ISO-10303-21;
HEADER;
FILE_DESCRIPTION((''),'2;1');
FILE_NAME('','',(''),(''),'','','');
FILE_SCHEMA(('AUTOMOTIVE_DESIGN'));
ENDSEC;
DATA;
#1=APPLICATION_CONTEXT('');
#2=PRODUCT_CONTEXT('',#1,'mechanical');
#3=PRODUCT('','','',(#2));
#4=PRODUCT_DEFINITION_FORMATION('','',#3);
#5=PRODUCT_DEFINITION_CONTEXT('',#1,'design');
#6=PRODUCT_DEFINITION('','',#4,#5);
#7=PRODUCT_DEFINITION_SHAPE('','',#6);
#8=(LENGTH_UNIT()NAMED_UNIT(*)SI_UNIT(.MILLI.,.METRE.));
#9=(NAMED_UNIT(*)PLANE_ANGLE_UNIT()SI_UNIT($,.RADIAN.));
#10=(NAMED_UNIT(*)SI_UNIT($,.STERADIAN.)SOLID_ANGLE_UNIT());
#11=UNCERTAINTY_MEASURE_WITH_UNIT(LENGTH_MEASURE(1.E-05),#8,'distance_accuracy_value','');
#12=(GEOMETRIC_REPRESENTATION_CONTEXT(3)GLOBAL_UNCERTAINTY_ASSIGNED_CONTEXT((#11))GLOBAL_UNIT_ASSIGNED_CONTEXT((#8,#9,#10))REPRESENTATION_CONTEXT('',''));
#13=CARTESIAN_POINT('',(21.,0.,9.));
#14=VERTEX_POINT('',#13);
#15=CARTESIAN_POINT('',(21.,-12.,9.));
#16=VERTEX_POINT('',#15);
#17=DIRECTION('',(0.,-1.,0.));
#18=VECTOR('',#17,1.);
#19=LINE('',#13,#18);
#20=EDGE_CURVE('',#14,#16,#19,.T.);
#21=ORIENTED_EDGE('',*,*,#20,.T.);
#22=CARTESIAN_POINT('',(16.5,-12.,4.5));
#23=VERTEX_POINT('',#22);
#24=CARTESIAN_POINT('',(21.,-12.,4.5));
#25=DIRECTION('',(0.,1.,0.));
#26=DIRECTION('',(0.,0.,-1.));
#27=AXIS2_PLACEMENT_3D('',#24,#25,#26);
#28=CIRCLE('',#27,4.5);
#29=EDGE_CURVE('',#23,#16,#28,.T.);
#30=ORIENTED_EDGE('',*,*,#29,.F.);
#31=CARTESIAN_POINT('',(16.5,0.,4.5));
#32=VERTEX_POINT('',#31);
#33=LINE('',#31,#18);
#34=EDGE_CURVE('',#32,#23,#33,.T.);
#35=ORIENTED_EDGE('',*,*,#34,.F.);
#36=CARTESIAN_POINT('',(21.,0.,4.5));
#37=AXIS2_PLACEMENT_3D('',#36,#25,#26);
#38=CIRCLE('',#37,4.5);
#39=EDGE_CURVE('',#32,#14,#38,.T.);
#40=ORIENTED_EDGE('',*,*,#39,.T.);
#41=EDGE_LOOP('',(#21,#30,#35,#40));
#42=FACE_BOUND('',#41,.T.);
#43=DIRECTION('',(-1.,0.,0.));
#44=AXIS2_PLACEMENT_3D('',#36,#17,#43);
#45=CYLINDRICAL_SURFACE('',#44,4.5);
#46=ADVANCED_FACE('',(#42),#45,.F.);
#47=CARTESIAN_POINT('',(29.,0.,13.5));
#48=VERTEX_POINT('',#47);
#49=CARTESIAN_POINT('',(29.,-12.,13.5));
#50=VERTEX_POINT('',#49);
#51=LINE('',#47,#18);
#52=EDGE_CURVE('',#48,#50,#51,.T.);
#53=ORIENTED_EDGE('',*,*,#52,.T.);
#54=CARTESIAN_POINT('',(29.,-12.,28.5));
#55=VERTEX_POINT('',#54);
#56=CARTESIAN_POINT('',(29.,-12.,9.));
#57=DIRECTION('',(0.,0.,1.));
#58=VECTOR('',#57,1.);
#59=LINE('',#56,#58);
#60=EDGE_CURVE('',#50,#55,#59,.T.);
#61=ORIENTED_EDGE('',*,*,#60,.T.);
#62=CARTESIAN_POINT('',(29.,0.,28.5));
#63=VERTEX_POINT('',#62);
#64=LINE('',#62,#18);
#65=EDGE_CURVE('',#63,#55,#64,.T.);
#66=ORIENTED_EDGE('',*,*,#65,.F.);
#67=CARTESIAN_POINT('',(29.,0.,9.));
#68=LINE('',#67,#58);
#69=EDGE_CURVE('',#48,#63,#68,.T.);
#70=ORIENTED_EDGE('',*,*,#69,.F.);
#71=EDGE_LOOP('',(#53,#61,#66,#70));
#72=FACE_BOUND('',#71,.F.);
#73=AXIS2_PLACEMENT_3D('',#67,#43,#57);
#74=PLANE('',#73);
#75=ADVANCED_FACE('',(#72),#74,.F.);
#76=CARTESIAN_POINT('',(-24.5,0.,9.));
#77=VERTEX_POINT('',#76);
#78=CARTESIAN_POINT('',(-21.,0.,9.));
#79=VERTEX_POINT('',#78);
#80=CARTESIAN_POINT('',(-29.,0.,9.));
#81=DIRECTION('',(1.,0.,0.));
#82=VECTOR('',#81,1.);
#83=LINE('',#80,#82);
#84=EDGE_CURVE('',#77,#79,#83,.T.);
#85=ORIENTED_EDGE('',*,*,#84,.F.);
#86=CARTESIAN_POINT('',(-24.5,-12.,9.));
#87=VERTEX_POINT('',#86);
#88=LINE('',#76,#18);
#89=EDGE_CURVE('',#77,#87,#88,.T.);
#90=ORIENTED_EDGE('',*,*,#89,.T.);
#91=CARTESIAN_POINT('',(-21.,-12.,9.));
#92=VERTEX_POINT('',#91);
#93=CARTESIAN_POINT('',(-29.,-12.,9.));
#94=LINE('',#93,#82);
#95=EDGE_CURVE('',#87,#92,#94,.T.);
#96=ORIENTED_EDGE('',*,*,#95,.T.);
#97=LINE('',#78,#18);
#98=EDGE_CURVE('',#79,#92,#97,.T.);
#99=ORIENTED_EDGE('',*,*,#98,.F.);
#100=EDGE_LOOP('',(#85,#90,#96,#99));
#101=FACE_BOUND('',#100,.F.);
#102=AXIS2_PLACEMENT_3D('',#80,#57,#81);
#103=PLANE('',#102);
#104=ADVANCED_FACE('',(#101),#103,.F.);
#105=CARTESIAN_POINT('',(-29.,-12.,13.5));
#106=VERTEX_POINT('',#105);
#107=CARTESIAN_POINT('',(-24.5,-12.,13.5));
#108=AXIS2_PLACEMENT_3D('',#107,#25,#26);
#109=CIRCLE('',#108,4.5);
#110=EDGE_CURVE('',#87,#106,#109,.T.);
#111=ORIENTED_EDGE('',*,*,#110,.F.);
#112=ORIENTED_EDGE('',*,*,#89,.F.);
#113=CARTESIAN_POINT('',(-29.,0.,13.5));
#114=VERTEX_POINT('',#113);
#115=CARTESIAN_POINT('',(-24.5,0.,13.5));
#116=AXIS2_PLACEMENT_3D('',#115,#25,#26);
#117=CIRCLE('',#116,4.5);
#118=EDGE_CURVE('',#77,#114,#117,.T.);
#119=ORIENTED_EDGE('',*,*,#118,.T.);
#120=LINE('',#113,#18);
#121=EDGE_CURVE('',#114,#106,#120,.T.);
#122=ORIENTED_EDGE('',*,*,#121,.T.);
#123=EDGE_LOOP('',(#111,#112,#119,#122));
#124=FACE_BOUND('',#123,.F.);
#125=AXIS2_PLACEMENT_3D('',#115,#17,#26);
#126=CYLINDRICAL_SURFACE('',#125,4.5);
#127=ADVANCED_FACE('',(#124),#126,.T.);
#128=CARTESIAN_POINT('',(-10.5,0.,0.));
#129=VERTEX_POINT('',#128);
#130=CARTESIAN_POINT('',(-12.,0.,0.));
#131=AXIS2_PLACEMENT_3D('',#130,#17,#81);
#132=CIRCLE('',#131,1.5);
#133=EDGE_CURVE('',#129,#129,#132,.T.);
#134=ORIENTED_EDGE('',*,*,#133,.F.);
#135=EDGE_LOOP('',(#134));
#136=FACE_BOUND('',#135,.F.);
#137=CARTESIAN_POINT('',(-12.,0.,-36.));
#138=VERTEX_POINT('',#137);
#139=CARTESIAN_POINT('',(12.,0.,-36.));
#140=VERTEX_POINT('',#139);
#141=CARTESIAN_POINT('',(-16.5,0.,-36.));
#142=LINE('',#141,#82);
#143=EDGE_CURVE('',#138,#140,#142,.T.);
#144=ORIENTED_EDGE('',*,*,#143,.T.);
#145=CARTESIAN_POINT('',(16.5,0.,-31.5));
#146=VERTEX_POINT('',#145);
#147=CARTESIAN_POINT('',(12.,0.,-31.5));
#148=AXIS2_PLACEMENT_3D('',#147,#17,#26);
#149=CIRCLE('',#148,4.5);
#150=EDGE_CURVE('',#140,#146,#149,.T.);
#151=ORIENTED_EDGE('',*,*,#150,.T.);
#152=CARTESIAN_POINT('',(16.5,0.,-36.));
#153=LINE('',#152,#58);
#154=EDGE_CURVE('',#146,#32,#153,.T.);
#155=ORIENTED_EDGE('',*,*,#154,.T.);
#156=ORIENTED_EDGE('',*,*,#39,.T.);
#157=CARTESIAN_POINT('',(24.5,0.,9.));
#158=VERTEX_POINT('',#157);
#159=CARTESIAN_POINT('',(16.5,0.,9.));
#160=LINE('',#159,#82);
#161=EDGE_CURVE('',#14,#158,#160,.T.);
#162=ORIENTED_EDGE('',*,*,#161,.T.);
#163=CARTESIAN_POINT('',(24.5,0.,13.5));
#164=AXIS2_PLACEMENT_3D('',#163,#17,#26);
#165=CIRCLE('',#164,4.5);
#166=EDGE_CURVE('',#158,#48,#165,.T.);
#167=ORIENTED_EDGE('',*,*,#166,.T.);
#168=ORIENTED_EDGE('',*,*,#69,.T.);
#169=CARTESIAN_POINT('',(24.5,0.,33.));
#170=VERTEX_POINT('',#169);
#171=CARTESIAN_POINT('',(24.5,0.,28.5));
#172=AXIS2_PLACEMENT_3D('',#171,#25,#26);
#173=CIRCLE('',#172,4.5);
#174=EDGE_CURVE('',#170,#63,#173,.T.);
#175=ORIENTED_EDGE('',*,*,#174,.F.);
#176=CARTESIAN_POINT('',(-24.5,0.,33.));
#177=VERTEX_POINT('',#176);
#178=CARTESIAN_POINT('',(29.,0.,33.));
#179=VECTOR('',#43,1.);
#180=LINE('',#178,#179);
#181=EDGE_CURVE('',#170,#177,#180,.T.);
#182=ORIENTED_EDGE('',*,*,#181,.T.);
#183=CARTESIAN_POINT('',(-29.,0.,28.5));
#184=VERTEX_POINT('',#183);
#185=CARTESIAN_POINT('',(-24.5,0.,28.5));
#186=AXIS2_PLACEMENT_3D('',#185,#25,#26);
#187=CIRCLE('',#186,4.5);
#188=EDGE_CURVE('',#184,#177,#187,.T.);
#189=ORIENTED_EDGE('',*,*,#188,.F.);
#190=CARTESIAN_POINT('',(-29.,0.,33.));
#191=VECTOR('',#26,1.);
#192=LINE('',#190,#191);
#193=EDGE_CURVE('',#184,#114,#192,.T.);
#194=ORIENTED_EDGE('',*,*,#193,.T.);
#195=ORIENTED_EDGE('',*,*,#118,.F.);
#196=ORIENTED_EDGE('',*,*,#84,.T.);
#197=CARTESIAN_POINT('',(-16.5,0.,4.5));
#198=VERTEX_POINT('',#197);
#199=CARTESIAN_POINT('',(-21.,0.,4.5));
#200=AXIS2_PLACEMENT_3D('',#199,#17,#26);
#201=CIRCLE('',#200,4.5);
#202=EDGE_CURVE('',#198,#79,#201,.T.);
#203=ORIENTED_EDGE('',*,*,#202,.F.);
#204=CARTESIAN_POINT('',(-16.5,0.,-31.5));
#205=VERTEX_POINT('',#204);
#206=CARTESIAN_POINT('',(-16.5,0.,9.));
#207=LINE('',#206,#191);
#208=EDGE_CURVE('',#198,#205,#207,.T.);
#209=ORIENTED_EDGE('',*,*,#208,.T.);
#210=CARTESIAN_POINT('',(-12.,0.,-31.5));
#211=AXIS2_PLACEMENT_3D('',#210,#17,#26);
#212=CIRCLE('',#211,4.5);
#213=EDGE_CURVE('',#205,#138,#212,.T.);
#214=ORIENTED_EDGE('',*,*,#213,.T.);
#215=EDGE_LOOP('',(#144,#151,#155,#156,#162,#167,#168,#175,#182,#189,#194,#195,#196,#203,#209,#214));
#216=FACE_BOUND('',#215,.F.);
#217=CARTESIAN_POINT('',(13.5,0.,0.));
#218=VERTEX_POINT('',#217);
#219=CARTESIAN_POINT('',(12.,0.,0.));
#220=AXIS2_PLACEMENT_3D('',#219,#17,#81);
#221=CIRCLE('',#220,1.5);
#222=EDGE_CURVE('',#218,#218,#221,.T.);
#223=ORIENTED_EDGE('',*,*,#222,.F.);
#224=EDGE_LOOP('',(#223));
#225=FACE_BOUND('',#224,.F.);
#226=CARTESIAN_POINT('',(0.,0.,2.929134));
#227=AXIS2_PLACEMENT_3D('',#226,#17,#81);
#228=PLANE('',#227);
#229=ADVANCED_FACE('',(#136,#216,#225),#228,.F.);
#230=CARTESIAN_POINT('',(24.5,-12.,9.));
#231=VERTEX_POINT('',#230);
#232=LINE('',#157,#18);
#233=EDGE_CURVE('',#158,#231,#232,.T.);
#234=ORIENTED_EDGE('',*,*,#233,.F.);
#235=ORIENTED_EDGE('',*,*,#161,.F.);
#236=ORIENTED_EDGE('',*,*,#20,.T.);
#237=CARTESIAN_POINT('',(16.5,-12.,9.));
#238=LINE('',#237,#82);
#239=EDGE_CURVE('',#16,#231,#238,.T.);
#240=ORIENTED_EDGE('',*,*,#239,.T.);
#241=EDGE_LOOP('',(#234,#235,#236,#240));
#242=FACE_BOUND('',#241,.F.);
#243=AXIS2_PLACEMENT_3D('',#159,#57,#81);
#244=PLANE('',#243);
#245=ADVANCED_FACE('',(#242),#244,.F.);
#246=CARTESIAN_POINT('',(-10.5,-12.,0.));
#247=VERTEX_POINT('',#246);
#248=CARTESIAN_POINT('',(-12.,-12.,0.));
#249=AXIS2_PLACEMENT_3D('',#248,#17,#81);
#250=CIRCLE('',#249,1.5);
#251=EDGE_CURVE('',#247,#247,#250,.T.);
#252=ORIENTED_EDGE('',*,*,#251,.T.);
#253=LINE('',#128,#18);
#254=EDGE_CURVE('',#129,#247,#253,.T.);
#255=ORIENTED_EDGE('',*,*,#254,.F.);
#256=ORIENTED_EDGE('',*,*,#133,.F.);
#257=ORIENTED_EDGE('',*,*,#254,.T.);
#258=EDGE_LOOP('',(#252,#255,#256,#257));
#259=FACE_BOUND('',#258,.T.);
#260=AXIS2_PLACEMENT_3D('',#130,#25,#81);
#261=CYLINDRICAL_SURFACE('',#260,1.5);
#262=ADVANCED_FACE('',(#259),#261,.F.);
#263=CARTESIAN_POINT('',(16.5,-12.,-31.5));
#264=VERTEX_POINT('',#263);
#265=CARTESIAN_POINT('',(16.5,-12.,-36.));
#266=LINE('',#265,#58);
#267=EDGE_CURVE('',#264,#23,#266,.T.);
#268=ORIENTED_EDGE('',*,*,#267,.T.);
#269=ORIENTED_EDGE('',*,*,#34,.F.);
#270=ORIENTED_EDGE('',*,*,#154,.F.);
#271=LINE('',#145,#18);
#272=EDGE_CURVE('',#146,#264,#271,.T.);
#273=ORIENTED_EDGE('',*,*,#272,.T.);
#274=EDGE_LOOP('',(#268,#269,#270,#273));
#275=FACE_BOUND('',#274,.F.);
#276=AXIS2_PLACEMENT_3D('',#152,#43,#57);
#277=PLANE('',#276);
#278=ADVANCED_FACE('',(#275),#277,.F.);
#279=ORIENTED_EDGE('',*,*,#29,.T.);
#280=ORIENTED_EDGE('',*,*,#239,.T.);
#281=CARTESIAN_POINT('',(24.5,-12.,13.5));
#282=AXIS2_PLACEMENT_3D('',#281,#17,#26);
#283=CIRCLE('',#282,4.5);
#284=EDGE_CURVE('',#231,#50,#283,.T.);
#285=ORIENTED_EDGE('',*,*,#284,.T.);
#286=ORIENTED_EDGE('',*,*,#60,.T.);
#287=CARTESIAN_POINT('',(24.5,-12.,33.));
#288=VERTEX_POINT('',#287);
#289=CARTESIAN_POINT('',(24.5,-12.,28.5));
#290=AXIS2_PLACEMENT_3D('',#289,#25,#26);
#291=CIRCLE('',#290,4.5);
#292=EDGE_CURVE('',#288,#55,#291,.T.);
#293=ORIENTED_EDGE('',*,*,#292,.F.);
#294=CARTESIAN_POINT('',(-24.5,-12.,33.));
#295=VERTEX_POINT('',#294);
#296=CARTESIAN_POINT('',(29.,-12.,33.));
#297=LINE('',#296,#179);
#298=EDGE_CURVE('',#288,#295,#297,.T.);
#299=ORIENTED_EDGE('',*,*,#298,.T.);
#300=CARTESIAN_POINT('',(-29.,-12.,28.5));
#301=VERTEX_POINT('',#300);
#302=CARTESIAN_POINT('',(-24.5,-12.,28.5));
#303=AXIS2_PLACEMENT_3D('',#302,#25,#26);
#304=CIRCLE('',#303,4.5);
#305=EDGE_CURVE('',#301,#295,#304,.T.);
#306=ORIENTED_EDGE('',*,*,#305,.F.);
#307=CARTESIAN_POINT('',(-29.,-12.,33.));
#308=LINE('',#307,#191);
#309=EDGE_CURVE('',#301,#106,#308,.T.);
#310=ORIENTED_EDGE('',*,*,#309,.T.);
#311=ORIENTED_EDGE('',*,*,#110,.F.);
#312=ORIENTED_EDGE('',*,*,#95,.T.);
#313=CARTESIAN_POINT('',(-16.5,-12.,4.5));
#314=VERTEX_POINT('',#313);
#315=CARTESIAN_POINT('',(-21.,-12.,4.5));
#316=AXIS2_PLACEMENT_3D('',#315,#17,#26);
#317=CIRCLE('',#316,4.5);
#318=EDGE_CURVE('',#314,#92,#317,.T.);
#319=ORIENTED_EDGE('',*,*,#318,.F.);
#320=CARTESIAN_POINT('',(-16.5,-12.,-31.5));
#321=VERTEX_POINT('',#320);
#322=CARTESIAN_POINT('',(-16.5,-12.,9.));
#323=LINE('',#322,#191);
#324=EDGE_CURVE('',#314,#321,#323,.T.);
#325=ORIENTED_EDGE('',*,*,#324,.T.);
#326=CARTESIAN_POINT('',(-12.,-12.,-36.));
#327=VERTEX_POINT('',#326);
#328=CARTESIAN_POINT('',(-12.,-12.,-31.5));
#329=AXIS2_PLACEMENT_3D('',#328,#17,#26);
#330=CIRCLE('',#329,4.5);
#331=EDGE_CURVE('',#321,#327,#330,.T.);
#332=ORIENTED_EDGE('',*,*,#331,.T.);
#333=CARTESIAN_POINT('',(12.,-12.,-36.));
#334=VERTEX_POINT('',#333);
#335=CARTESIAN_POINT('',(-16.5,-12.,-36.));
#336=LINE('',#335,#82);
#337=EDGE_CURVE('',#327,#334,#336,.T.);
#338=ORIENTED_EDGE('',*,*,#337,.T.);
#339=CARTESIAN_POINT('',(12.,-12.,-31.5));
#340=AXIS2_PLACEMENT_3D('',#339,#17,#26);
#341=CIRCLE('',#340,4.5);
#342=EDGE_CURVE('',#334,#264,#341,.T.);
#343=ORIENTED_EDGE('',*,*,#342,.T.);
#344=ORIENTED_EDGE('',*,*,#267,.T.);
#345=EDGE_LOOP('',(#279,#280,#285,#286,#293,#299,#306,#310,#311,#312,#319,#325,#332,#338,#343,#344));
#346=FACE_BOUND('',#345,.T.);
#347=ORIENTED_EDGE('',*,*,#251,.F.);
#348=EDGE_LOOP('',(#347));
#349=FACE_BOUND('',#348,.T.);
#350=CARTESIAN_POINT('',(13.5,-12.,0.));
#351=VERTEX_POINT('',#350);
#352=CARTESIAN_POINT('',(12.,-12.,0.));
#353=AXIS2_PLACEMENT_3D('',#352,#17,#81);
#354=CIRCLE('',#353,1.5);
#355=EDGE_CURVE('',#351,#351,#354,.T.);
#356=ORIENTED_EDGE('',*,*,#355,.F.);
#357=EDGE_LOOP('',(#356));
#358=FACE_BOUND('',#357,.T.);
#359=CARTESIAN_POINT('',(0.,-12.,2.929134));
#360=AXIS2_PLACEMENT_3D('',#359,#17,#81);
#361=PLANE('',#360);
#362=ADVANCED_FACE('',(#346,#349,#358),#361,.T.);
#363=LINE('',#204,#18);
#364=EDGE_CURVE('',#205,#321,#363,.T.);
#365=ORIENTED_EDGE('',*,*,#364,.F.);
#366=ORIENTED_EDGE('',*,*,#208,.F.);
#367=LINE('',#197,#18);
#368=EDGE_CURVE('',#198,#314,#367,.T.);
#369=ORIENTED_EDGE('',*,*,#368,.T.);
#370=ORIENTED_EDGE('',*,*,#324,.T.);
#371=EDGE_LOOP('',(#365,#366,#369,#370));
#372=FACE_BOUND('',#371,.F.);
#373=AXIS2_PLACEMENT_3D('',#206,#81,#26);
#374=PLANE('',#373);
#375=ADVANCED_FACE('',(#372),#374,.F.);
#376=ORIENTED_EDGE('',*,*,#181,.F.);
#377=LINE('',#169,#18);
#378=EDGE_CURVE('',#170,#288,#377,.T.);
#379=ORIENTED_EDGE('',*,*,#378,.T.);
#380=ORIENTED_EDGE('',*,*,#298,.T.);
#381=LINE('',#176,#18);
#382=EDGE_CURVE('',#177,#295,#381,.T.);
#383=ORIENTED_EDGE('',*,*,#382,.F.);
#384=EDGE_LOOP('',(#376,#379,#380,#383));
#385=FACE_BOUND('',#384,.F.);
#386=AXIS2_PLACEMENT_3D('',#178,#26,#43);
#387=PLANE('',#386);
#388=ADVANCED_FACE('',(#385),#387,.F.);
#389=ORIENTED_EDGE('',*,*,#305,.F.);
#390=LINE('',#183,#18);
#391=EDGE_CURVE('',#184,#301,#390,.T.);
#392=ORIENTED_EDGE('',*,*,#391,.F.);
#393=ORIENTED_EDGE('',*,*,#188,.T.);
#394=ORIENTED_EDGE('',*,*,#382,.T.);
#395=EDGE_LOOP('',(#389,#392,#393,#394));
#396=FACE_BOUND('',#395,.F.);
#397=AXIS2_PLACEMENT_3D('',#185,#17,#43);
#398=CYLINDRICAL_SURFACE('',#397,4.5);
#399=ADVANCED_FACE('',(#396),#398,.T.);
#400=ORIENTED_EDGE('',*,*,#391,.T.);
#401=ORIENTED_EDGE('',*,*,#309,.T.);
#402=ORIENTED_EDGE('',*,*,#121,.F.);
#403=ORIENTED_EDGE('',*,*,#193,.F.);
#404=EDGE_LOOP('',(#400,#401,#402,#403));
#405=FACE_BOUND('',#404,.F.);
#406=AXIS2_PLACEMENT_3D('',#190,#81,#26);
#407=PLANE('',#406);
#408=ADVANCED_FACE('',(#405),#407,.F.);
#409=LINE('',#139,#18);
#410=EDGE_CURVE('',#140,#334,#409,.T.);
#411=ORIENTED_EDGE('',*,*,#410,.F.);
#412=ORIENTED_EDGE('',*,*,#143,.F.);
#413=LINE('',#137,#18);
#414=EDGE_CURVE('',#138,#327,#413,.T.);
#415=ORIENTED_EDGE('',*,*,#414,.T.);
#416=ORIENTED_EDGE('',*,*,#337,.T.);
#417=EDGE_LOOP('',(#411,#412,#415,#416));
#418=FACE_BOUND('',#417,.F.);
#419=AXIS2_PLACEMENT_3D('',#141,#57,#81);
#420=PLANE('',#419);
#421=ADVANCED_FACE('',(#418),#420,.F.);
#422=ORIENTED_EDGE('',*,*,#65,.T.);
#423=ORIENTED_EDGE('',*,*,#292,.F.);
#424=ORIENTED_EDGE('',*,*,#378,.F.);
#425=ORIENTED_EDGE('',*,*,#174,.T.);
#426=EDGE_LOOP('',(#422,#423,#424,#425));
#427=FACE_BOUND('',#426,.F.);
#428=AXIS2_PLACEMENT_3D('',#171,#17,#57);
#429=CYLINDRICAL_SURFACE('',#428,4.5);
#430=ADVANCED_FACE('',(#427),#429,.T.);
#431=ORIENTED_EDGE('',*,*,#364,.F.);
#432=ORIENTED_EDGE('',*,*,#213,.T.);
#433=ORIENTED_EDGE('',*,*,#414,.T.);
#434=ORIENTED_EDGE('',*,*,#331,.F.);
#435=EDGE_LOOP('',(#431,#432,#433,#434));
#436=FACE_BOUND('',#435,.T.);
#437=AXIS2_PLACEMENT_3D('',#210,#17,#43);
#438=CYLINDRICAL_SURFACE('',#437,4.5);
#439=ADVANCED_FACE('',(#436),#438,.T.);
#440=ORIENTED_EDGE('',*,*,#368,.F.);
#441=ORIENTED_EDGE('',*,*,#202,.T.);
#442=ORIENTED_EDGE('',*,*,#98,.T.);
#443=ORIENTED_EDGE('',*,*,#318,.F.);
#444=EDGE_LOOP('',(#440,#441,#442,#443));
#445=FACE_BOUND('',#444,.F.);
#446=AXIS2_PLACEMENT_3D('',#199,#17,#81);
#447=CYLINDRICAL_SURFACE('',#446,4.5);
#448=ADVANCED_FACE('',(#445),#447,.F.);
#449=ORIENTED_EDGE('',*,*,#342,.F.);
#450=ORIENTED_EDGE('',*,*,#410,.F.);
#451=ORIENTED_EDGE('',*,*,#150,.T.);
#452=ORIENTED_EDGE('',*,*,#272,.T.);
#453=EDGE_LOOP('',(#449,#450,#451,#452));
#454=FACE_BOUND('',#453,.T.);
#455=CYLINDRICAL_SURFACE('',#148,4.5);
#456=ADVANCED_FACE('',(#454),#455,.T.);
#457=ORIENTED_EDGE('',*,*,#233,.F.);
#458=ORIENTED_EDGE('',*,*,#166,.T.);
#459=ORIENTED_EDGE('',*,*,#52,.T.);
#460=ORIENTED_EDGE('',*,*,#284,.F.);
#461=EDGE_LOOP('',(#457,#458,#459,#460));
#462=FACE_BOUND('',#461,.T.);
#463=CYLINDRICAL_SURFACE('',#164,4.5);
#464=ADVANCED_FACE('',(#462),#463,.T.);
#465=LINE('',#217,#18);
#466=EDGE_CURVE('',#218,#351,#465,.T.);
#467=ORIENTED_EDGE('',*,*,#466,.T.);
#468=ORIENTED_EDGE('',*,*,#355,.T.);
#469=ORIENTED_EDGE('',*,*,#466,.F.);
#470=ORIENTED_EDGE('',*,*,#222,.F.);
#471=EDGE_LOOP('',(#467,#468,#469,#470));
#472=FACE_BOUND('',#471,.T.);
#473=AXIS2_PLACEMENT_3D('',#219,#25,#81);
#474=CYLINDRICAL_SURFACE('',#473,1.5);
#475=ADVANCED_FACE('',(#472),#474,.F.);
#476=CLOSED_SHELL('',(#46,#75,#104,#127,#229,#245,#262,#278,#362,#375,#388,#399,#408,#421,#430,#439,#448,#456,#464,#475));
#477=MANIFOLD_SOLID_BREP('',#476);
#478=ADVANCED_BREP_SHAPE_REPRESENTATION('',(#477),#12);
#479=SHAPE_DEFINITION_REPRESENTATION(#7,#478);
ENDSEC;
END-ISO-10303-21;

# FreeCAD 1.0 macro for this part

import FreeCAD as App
import Part
import Sketcher
Q = App.Units.Quantity


def edges_at(feature, points):
    """Names of the edges that pass closest to the given points."""
    edges = feature.Shape.Edges
    near = lambda p: min(range(len(edges)), key=lambda i: edges[i].distToShape(Part.Vertex(*p))[0])
    return sorted({f"Edge{near(p) + 1}" for p in points})

doc = App.newDocument("Part")
body = doc.addObject("PartDesign::Body", "Body")

# Sketch on XZ plane
sketch1 = body.newObject("Sketcher::SketchObject", "Sketch")
sketch1.AttachmentSupport = (doc.getObject("XZ_Plane"), [""])
sketch1.MapMode = "FlatFace"
sketch1.addGeometry(Part.LineSegment(App.Vector(-16.5, 9, 0), App.Vector(-16.5, -36, 0)), False)
sketch1.addGeometry(Part.LineSegment(App.Vector(-16.5, -36, 0), App.Vector(16.5, -36, 0)), False)
sketch1.addGeometry(Part.LineSegment(App.Vector(16.5, -36, 0), App.Vector(16.5, 9, 0)), False)
sketch1.addGeometry(Part.LineSegment(App.Vector(16.5, 9, 0), App.Vector(29, 9, 0)), False)
sketch1.addGeometry(Part.LineSegment(App.Vector(29, 9, 0), App.Vector(29, 33, 0)), False)
sketch1.addGeometry(Part.LineSegment(App.Vector(29, 33, 0), App.Vector(-29, 33, 0)), False)
sketch1.addGeometry(Part.LineSegment(App.Vector(-29, 33, 0), App.Vector(-29, 9, 0)), False)
sketch1.addGeometry(Part.LineSegment(App.Vector(-29, 9, 0), App.Vector(-16.5, 9, 0)), False)
sketch1.addGeometry(Part.Circle(App.Vector(-12, 0, 0), App.Vector(0, 0, 1), 1.5), False)
sketch1.addGeometry(Part.Circle(App.Vector(12, 0, 0), App.Vector(0, 0, 1), 1.5), False)
sketch1.addConstraint(Sketcher.Constraint("Coincident", 0, 2, 1, 1))
sketch1.addConstraint(Sketcher.Constraint("Coincident", 1, 2, 2, 1))
sketch1.addConstraint(Sketcher.Constraint("Coincident", 2, 2, 3, 1))
sketch1.addConstraint(Sketcher.Constraint("Coincident", 3, 2, 4, 1))
sketch1.addConstraint(Sketcher.Constraint("Coincident", 4, 2, 5, 1))
sketch1.addConstraint(Sketcher.Constraint("Coincident", 5, 2, 6, 1))
sketch1.addConstraint(Sketcher.Constraint("Coincident", 6, 2, 7, 1))
sketch1.addConstraint(Sketcher.Constraint("Coincident", 7, 2, 0, 1))
sketch1.addConstraint(Sketcher.Constraint("Vertical", 0))
sketch1.addConstraint(Sketcher.Constraint("Horizontal", 1))
sketch1.addConstraint(Sketcher.Constraint("Vertical", 2))
sketch1.addConstraint(Sketcher.Constraint("Horizontal", 3))
sketch1.addConstraint(Sketcher.Constraint("Vertical", 4))
sketch1.addConstraint(Sketcher.Constraint("Horizontal", 5))
sketch1.addConstraint(Sketcher.Constraint("Vertical", 6))
sketch1.addConstraint(Sketcher.Constraint("Horizontal", 7))
sketch1.addConstraint(Sketcher.Constraint("Equal", 8, 9))
sketch1.addConstraint(Sketcher.Constraint("Symmetric", 8, 3, 9, 3, -1, 1))
sketch1.addConstraint(Sketcher.Constraint("Symmetric", 3, 2, 6, 2, -2))
sketch1.addConstraint(Sketcher.Constraint("PointOnObject", 8, 3, -1))
sketch1.addConstraint(Sketcher.Constraint("Equal", 3, 7))
sketch1.addConstraint(Sketcher.Constraint("Diameter", 8, Q("3 mm")))
sketch1.addConstraint(Sketcher.Constraint("DistanceX", 1, 1, 1, 2, Q("33 mm")))
sketch1.addConstraint(Sketcher.Constraint("DistanceX", 5, 2, 5, 1, Q("58 mm")))
sketch1.addConstraint(Sketcher.Constraint("DistanceY", 0, 2, 0, 1, Q("45 mm")))
sketch1.addConstraint(Sketcher.Constraint("DistanceY", 4, 1, 4, 2, Q("24 mm")))
sketch1.addConstraint(Sketcher.Constraint("DistanceX", 8, 3, -1, 1, Q("12 mm")))
sketch1.addConstraint(Sketcher.Constraint("DistanceY", 0, 2, -1, 1, Q("36 mm")))
pad1 = body.newObject("PartDesign::Pad", "Pad")
pad1.Profile = sketch1
pad1.Length = 12
doc.recompute()

fillet = body.newObject("PartDesign::Fillet", "Fillet")
fillet.Base = (pad1, edges_at(pad1, [
    (-29, -6, 33),
    (-29, -6, 9),
    (-16.5, -6, 9),
    (-16.5, -6, -36),
    (16.5, -6, -36),
    (16.5, -6, 9),
    (29, -6, 9),
    (29, -6, 33),
]))
fillet.Radius = 4.5

doc.recompute()
